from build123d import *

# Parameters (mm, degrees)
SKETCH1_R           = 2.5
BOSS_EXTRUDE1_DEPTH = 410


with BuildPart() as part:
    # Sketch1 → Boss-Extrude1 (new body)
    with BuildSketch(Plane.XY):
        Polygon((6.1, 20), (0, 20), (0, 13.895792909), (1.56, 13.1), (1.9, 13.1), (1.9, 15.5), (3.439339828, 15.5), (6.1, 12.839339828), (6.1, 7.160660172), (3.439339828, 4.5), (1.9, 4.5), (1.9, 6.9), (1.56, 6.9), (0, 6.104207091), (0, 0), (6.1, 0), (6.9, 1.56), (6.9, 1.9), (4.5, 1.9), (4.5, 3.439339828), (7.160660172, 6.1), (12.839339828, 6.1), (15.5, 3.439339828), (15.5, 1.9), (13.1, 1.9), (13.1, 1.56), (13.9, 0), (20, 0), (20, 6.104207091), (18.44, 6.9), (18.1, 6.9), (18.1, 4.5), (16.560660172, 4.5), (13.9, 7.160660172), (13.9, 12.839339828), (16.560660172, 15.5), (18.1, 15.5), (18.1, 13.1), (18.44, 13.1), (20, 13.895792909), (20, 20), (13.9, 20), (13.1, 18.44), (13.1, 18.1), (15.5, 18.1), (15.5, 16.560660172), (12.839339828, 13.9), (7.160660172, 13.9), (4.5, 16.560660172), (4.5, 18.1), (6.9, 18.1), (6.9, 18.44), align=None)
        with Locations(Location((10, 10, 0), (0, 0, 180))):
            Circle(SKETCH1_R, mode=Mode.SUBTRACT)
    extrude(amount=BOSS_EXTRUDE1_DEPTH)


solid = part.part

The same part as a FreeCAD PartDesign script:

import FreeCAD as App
import Part
import Sketcher

V = App.Vector
Q = App.Units.Quantity

doc = App.newDocument("Part")
body = doc.addObject("PartDesign::Body", "Body")

# Sketch on XY plane
sketch1 = body.newObject("Sketcher::SketchObject", "Sketch")
sketch1.AttachmentSupport = (doc.getObject("XY_Plane"), [""])
sketch1.MapMode = "FlatFace"
sketch1.addGeometry(Part.LineSegment(V(6.1, 20, 0), V(0, 20, 0)), False)
sketch1.addGeometry(Part.LineSegment(V(0, 20, 0), V(0, 13.9, 0)), False)
sketch1.addGeometry(Part.LineSegment(V(0, 13.9, 0), V(1.56, 13.1, 0)), False)
sketch1.addGeometry(Part.LineSegment(V(1.56, 13.1, 0), V(1.9, 13.1, 0)), False)
sketch1.addGeometry(Part.LineSegment(V(1.9, 13.1, 0), V(1.9, 15.5, 0)), False)
sketch1.addGeometry(Part.LineSegment(V(1.9, 15.5, 0), V(3.44, 15.5, 0)), False)
sketch1.addGeometry(Part.LineSegment(V(3.44, 15.5, 0), V(6.1, 12.84, 0)), False)
sketch1.addGeometry(Part.LineSegment(V(6.1, 12.84, 0), V(6.1, 7.16, 0)), False)
sketch1.addGeometry(Part.LineSegment(V(6.1, 7.16, 0), V(3.44, 4.5, 0)), False)
sketch1.addGeometry(Part.LineSegment(V(3.44, 4.5, 0), V(1.9, 4.5, 0)), False)
sketch1.addGeometry(Part.LineSegment(V(1.9, 4.5, 0), V(1.9, 6.9, 0)), False)
sketch1.addGeometry(Part.LineSegment(V(1.9, 6.9, 0), V(1.56, 6.9, 0)), False)
sketch1.addGeometry(Part.LineSegment(V(1.56, 6.9, 0), V(0, 6.1, 0)), False)
sketch1.addGeometry(Part.LineSegment(V(0, 6.1, 0), V(0, 0, 0)), False)
sketch1.addGeometry(Part.LineSegment(V(0, 0, 0), V(6.1, 0, 0)), False)
sketch1.addGeometry(Part.LineSegment(V(6.1, 0, 0), V(6.9, 1.56, 0)), False)
sketch1.addGeometry(Part.LineSegment(V(6.9, 1.56, 0), V(6.9, 1.9, 0)), False)
sketch1.addGeometry(Part.LineSegment(V(6.9, 1.9, 0), V(4.5, 1.9, 0)), False)
sketch1.addGeometry(Part.LineSegment(V(4.5, 1.9, 0), V(4.5, 3.44, 0)), False)
sketch1.addGeometry(Part.LineSegment(V(4.5, 3.44, 0), V(7.16, 6.1, 0)), False)
sketch1.addGeometry(Part.LineSegment(V(7.16, 6.1, 0), V(12.84, 6.1, 0)), False)
sketch1.addGeometry(Part.LineSegment(V(12.84, 6.1, 0), V(15.5, 3.44, 0)), False)
sketch1.addGeometry(Part.LineSegment(V(15.5, 3.44, 0), V(15.5, 1.9, 0)), False)
sketch1.addGeometry(Part.LineSegment(V(15.5, 1.9, 0), V(13.1, 1.9, 0)), False)
sketch1.addGeometry(Part.LineSegment(V(13.1, 1.9, 0), V(13.1, 1.56, 0)), False)
sketch1.addGeometry(Part.LineSegment(V(13.1, 1.56, 0), V(13.9, 0, 0)), False)
sketch1.addGeometry(Part.LineSegment(V(13.9, 0, 0), V(20, 0, 0)), False)
sketch1.addGeometry(Part.LineSegment(V(20, 0, 0), V(20, 6.1, 0)), False)
sketch1.addGeometry(Part.LineSegment(V(20, 6.1, 0), V(18.44, 6.9, 0)), False)
sketch1.addGeometry(Part.LineSegment(V(18.44, 6.9, 0), V(18.1, 6.9, 0)), False)
sketch1.addGeometry(Part.LineSegment(V(18.1, 6.9, 0), V(18.1, 4.5, 0)), False)
sketch1.addGeometry(Part.LineSegment(V(18.1, 4.5, 0), V(16.56, 4.5, 0)), False)
sketch1.addGeometry(Part.LineSegment(V(16.56, 4.5, 0), V(13.9, 7.16, 0)), False)
sketch1.addGeometry(Part.LineSegment(V(13.9, 7.16, 0), V(13.9, 12.84, 0)), False)
sketch1.addGeometry(Part.LineSegment(V(13.9, 12.84, 0), V(16.56, 15.5, 0)), False)
sketch1.addGeometry(Part.LineSegment(V(16.56, 15.5, 0), V(18.1, 15.5, 0)), False)
sketch1.addGeometry(Part.LineSegment(V(18.1, 15.5, 0), V(18.1, 13.1, 0)), False)
sketch1.addGeometry(Part.LineSegment(V(18.1, 13.1, 0), V(18.44, 13.1, 0)), False)
sketch1.addGeometry(Part.LineSegment(V(18.44, 13.1, 0), V(20, 13.9, 0)), False)
sketch1.addGeometry(Part.LineSegment(V(20, 13.9, 0), V(20, 20, 0)), False)
sketch1.addGeometry(Part.LineSegment(V(20, 20, 0), V(13.9, 20, 0)), False)
sketch1.addGeometry(Part.LineSegment(V(13.9, 20, 0), V(13.1, 18.44, 0)), False)
sketch1.addGeometry(Part.LineSegment(V(13.1, 18.44, 0), V(13.1, 18.1, 0)), False)
sketch1.addGeometry(Part.LineSegment(V(13.1, 18.1, 0), V(15.5, 18.1, 0)), False)
sketch1.addGeometry(Part.LineSegment(V(15.5, 18.1, 0), V(15.5, 16.56, 0)), False)
sketch1.addGeometry(Part.LineSegment(V(15.5, 16.56, 0), V(12.84, 13.9, 0)), False)
sketch1.addGeometry(Part.LineSegment(V(12.84, 13.9, 0), V(7.16, 13.9, 0)), False)
sketch1.addGeometry(Part.LineSegment(V(7.16, 13.9, 0), V(4.5, 16.56, 0)), False)
sketch1.addGeometry(Part.LineSegment(V(4.5, 16.56, 0), V(4.5, 18.1, 0)), False)
sketch1.addGeometry(Part.LineSegment(V(4.5, 18.1, 0), V(6.9, 18.1, 0)), False)
sketch1.addGeometry(Part.LineSegment(V(6.9, 18.1, 0), V(6.9, 18.44, 0)), False)
sketch1.addGeometry(Part.LineSegment(V(6.9, 18.44, 0), V(6.1, 20, 0)), False)
sketch1.addGeometry(Part.Circle(V(10, 10, 0), V(0, 0, 1), 2.5), False)
sketch1.addConstraint(Sketcher.Constraint("Coincident", 0, 2, 1, 1))
sketch1.addConstraint(Sketcher.Constraint("Coincident", 1, 2, 2, 1))
sketch1.addConstraint(Sketcher.Constraint("Coincident", 2, 2, 3, 1))
sketch1.addConstraint(Sketcher.Constraint("Coincident", 3, 2, 4, 1))
sketch1.addConstraint(Sketcher.Constraint("Coincident", 4, 2, 5, 1))
sketch1.addConstraint(Sketcher.Constraint("Coincident", 5, 2, 6, 1))
sketch1.addConstraint(Sketcher.Constraint("Coincident", 6, 2, 7, 1))
sketch1.addConstraint(Sketcher.Constraint("Coincident", 7, 2, 8, 1))
sketch1.addConstraint(Sketcher.Constraint("Coincident", 8, 2, 9, 1))
sketch1.addConstraint(Sketcher.Constraint("Coincident", 9, 2, 10, 1))
sketch1.addConstraint(Sketcher.Constraint("Coincident", 10, 2, 11, 1))
sketch1.addConstraint(Sketcher.Constraint("Coincident", 11, 2, 12, 1))
sketch1.addConstraint(Sketcher.Constraint("Coincident", 12, 2, 13, 1))
sketch1.addConstraint(Sketcher.Constraint("Coincident", 13, 2, 14, 1))
sketch1.addConstraint(Sketcher.Constraint("Coincident", 14, 2, 15, 1))
sketch1.addConstraint(Sketcher.Constraint("Coincident", 15, 2, 16, 1))
sketch1.addConstraint(Sketcher.Constraint("Coincident", 16, 2, 17, 1))
sketch1.addConstraint(Sketcher.Constraint("Coincident", 17, 2, 18, 1))
sketch1.addConstraint(Sketcher.Constraint("Coincident", 18, 2, 19, 1))
sketch1.addConstraint(Sketcher.Constraint("Coincident", 19, 2, 20, 1))
sketch1.addConstraint(Sketcher.Constraint("Coincident", 20, 2, 21, 1))
sketch1.addConstraint(Sketcher.Constraint("Coincident", 21, 2, 22, 1))
sketch1.addConstraint(Sketcher.Constraint("Coincident", 22, 2, 23, 1))
sketch1.addConstraint(Sketcher.Constraint("Coincident", 23, 2, 24, 1))
sketch1.addConstraint(Sketcher.Constraint("Coincident", 24, 2, 25, 1))
sketch1.addConstraint(Sketcher.Constraint("Coincident", 25, 2, 26, 1))
sketch1.addConstraint(Sketcher.Constraint("Coincident", 26, 2, 27, 1))
sketch1.addConstraint(Sketcher.Constraint("Coincident", 27, 2, 28, 1))
sketch1.addConstraint(Sketcher.Constraint("Coincident", 28, 2, 29, 1))
sketch1.addConstraint(Sketcher.Constraint("Coincident", 29, 2, 30, 1))
sketch1.addConstraint(Sketcher.Constraint("Coincident", 30, 2, 31, 1))
sketch1.addConstraint(Sketcher.Constraint("Coincident", 31, 2, 32, 1))
sketch1.addConstraint(Sketcher.Constraint("Coincident", 32, 2, 33, 1))
sketch1.addConstraint(Sketcher.Constraint("Coincident", 33, 2, 34, 1))
sketch1.addConstraint(Sketcher.Constraint("Coincident", 34, 2, 35, 1))
sketch1.addConstraint(Sketcher.Constraint("Coincident", 35, 2, 36, 1))
sketch1.addConstraint(Sketcher.Constraint("Coincident", 36, 2, 37, 1))
sketch1.addConstraint(Sketcher.Constraint("Coincident", 37, 2, 38, 1))
sketch1.addConstraint(Sketcher.Constraint("Coincident", 38, 2, 39, 1))
sketch1.addConstraint(Sketcher.Constraint("Coincident", 39, 2, 40, 1))
sketch1.addConstraint(Sketcher.Constraint("Coincident", 40, 2, 41, 1))
sketch1.addConstraint(Sketcher.Constraint("Coincident", 41, 2, 42, 1))
sketch1.addConstraint(Sketcher.Constraint("Coincident", 42, 2, 43, 1))
sketch1.addConstraint(Sketcher.Constraint("Coincident", 43, 2, 44, 1))
sketch1.addConstraint(Sketcher.Constraint("Coincident", 44, 2, 45, 1))
sketch1.addConstraint(Sketcher.Constraint("Coincident", 45, 2, 46, 1))
sketch1.addConstraint(Sketcher.Constraint("Coincident", 46, 2, 47, 1))
sketch1.addConstraint(Sketcher.Constraint("Coincident", 47, 2, 48, 1))
sketch1.addConstraint(Sketcher.Constraint("Coincident", 48, 2, 49, 1))
sketch1.addConstraint(Sketcher.Constraint("Coincident", 49, 2, 50, 1))
sketch1.addConstraint(Sketcher.Constraint("Coincident", 50, 2, 51, 1))
sketch1.addConstraint(Sketcher.Constraint("Coincident", 51, 2, 0, 1))
sketch1.addConstraint(Sketcher.Constraint("Horizontal", 0))
sketch1.addConstraint(Sketcher.Constraint("Vertical", 1))
sketch1.addConstraint(Sketcher.Constraint("Horizontal", 3))
sketch1.addConstraint(Sketcher.Constraint("Vertical", 4))
sketch1.addConstraint(Sketcher.Constraint("Horizontal", 5))
sketch1.addConstraint(Sketcher.Constraint("Vertical", 7))
sketch1.addConstraint(Sketcher.Constraint("Horizontal", 9))
sketch1.addConstraint(Sketcher.Constraint("Vertical", 10))
sketch1.addConstraint(Sketcher.Constraint("Horizontal", 11))
sketch1.addConstraint(Sketcher.Constraint("Vertical", 13))
sketch1.addConstraint(Sketcher.Constraint("Horizontal", 14))
sketch1.addConstraint(Sketcher.Constraint("Vertical", 16))
sketch1.addConstraint(Sketcher.Constraint("Horizontal", 17))
sketch1.addConstraint(Sketcher.Constraint("Vertical", 18))
sketch1.addConstraint(Sketcher.Constraint("Horizontal", 20))
sketch1.addConstraint(Sketcher.Constraint("Vertical", 22))
sketch1.addConstraint(Sketcher.Constraint("Horizontal", 23))
sketch1.addConstraint(Sketcher.Constraint("Vertical", 24))
sketch1.addConstraint(Sketcher.Constraint("Horizontal", 26))
sketch1.addConstraint(Sketcher.Constraint("Vertical", 27))
sketch1.addConstraint(Sketcher.Constraint("Horizontal", 29))
sketch1.addConstraint(Sketcher.Constraint("Vertical", 30))
sketch1.addConstraint(Sketcher.Constraint("Horizontal", 31))
sketch1.addConstraint(Sketcher.Constraint("Vertical", 33))
sketch1.addConstraint(Sketcher.Constraint("Horizontal", 35))
sketch1.addConstraint(Sketcher.Constraint("Vertical", 36))
sketch1.addConstraint(Sketcher.Constraint("Horizontal", 37))
sketch1.addConstraint(Sketcher.Constraint("Vertical", 39))
sketch1.addConstraint(Sketcher.Constraint("Horizontal", 40))
sketch1.addConstraint(Sketcher.Constraint("Vertical", 42))
sketch1.addConstraint(Sketcher.Constraint("Horizontal", 43))
sketch1.addConstraint(Sketcher.Constraint("Vertical", 44))
sketch1.addConstraint(Sketcher.Constraint("Horizontal", 46))
sketch1.addConstraint(Sketcher.Constraint("Vertical", 48))
sketch1.addConstraint(Sketcher.Constraint("Horizontal", 49))
sketch1.addConstraint(Sketcher.Constraint("Vertical", 50))
sketch1.addConstraint(Sketcher.Constraint("Coincident", 13, 2, -1, 1))
sketch1.addConstraint(Sketcher.Constraint("PointOnObject", 0, 2, -2))
sketch1.addConstraint(Sketcher.Constraint("PointOnObject", 25, 2, -1))
sketch1.addConstraint(Sketcher.Constraint("Perpendicular", 6, 8))
sketch1.addConstraint(Sketcher.Constraint("Parallel", 8, 19))
sketch1.addConstraint(Sketcher.Constraint("Perpendicular", 19, 21))
sketch1.addConstraint(Sketcher.Constraint("Parallel", 2, 28))
sketch1.addConstraint(Sketcher.Constraint("Parallel", 21, 32))
sketch1.addConstraint(Sketcher.Constraint("Perpendicular", 32, 34))
sketch1.addConstraint(Sketcher.Constraint("Parallel", 12, 38))
sketch1.addConstraint(Sketcher.Constraint("Parallel", 15, 41))
sketch1.addConstraint(Sketcher.Constraint("Parallel", 34, 45))
sketch1.addConstraint(Sketcher.Constraint("Perpendicular", 45, 47))
sketch1.addConstraint(Sketcher.Constraint("Parallel", 25, 51))
sketch1.addConstraint(Sketcher.Constraint("Horizontal", 18, 2, 21, 2))
sketch1.addConstraint(Sketcher.Constraint("Horizontal", 17, 2, 22, 2))
sketch1.addConstraint(Sketcher.Constraint("Horizontal", 15, 2, 24, 2))
sketch1.addConstraint(Sketcher.Constraint("Horizontal", 12, 2, 27, 2))
sketch1.addConstraint(Sketcher.Constraint("Horizontal", 11, 2, 28, 2))
sketch1.addConstraint(Sketcher.Constraint("Horizontal", 9, 2, 30, 2))
sketch1.addConstraint(Sketcher.Constraint("Horizontal", 7, 2, 32, 2))
sketch1.addConstraint(Sketcher.Constraint("Horizontal", 6, 2, 33, 2))
sketch1.addConstraint(Sketcher.Constraint("Horizontal", 5, 2, 34, 2))
sketch1.addConstraint(Sketcher.Constraint("Horizontal", 3, 2, 36, 2))
sketch1.addConstraint(Sketcher.Constraint("Horizontal", 1, 2, 38, 2))
sketch1.addConstraint(Sketcher.Constraint("Horizontal", 0, 2, 39, 2))
sketch1.addConstraint(Sketcher.Constraint("Horizontal", 44, 2, 47, 2))
sketch1.addConstraint(Sketcher.Constraint("Horizontal", 43, 2, 48, 2))
sketch1.addConstraint(Sketcher.Constraint("Horizontal", 41, 2, 50, 2))
sketch1.addConstraint(Sketcher.Constraint("Vertical", 5, 2, 8, 2))
sketch1.addConstraint(Sketcher.Constraint("Vertical", 4, 2, 9, 2))
sketch1.addConstraint(Sketcher.Constraint("Vertical", 2, 2, 11, 2))
sketch1.addConstraint(Sketcher.Constraint("Vertical", 7, 2, 14, 2))
sketch1.addConstraint(Sketcher.Constraint("Vertical", 25, 2, 32, 2))
sketch1.addConstraint(Sketcher.Constraint("Vertical", 31, 2, 34, 2))
sketch1.addConstraint(Sketcher.Constraint("Vertical", 30, 2, 35, 2))
sketch1.addConstraint(Sketcher.Constraint("Vertical", 28, 2, 37, 2))
sketch1.addConstraint(Sketcher.Constraint("Vertical", 27, 2, 38, 2))
sketch1.addConstraint(Sketcher.Constraint("Vertical", 33, 2, 40, 2))
sketch1.addConstraint(Sketcher.Constraint("Vertical", 24, 2, 41, 2))
sketch1.addConstraint(Sketcher.Constraint("Vertical", 22, 2, 43, 2))
sketch1.addConstraint(Sketcher.Constraint("Vertical", 20, 2, 45, 2))
sketch1.addConstraint(Sketcher.Constraint("Vertical", 19, 2, 46, 2))
sketch1.addConstraint(Sketcher.Constraint("Vertical", 16, 2, 49, 2))
sketch1.addConstraint(Sketcher.Constraint("Vertical", 14, 2, 51, 2))
sketch1.addConstraint(Sketcher.Constraint("Equal", 17, 23))
sketch1.addConstraint(Sketcher.Constraint("Equal", 14, 26))
sketch1.addConstraint(Sketcher.Constraint("Equal", 11, 29))
sketch1.addConstraint(Sketcher.Constraint("Equal", 49, 4))
sketch1.addConstraint(Sketcher.Constraint("Equal", 46, 7))
sketch1.addConstraint(Sketcher.Constraint("Equal", 4, 10))
sketch1.addConstraint(Sketcher.Constraint("Equal", 1, 13))
sketch1.addConstraint(Sketcher.Constraint("Equal", 37, 16))
sketch1.addConstraint(Sketcher.Constraint("Equal", 35, 18))
sketch1.addConstraint(Sketcher.Constraint("Equal", 24, 42))
sketch1.addConstraint(Sketcher.Constraint("Equal", 22, 44))
sketch1.addConstraint(Sketcher.Constraint("Equal", 8, 19))
sketch1.addConstraint(Sketcher.Constraint("Diameter", 52, Q("5 mm")))
sketch1.addConstraint(Sketcher.Constraint("DistanceX", 0, 2, 0, 1, Q("6.1 mm")))
sketch1.addConstraint(Sketcher.Constraint("DistanceX", 17, 2, 17, 1, Q("2.4 mm")))
sketch1.addConstraint(Sketcher.Constraint("DistanceX", -1, 1, 52, 3, Q("10 mm")))
sketch1.addConstraint(Sketcher.Constraint("DistanceY", -1, 1, 52, 3, Q("10 mm")))
sketch1.addConstraint(Sketcher.Constraint("DistanceY", -1, 1, 0, 2, Q("20 mm")))
sketch1.addConstraint(Sketcher.Constraint("DistanceX", -1, 1, 26, 2, Q("20 mm")))
sketch1.addConstraint(Sketcher.Constraint("DistanceX", 9, 2, 15, 2, Q("5 mm")))
sketch1.addConstraint(Sketcher.Constraint("DistanceY", 22, 2, 28, 2, Q("5 mm")))
sketch1.addConstraint(Sketcher.Constraint("DistanceX", 3, 1, 3, 2, Q("0.34 mm")))
sketch1.addConstraint(Sketcher.Constraint("DistanceY", -1, 1, 2, 2, Q("13.1 mm")))
sketch1.addConstraint(Sketcher.Constraint("DistanceX", 5, 1, 5, 2, Q("1.53934 mm")))
sketch1.addConstraint(Sketcher.Constraint("DistanceY", 1, 2, 1, 1, Q("6.104207 mm")))
pad1 = body.newObject("PartDesign::Pad", "Pad")
pad1.Profile = sketch1
pad1.Length = 410

doc.recompute()
